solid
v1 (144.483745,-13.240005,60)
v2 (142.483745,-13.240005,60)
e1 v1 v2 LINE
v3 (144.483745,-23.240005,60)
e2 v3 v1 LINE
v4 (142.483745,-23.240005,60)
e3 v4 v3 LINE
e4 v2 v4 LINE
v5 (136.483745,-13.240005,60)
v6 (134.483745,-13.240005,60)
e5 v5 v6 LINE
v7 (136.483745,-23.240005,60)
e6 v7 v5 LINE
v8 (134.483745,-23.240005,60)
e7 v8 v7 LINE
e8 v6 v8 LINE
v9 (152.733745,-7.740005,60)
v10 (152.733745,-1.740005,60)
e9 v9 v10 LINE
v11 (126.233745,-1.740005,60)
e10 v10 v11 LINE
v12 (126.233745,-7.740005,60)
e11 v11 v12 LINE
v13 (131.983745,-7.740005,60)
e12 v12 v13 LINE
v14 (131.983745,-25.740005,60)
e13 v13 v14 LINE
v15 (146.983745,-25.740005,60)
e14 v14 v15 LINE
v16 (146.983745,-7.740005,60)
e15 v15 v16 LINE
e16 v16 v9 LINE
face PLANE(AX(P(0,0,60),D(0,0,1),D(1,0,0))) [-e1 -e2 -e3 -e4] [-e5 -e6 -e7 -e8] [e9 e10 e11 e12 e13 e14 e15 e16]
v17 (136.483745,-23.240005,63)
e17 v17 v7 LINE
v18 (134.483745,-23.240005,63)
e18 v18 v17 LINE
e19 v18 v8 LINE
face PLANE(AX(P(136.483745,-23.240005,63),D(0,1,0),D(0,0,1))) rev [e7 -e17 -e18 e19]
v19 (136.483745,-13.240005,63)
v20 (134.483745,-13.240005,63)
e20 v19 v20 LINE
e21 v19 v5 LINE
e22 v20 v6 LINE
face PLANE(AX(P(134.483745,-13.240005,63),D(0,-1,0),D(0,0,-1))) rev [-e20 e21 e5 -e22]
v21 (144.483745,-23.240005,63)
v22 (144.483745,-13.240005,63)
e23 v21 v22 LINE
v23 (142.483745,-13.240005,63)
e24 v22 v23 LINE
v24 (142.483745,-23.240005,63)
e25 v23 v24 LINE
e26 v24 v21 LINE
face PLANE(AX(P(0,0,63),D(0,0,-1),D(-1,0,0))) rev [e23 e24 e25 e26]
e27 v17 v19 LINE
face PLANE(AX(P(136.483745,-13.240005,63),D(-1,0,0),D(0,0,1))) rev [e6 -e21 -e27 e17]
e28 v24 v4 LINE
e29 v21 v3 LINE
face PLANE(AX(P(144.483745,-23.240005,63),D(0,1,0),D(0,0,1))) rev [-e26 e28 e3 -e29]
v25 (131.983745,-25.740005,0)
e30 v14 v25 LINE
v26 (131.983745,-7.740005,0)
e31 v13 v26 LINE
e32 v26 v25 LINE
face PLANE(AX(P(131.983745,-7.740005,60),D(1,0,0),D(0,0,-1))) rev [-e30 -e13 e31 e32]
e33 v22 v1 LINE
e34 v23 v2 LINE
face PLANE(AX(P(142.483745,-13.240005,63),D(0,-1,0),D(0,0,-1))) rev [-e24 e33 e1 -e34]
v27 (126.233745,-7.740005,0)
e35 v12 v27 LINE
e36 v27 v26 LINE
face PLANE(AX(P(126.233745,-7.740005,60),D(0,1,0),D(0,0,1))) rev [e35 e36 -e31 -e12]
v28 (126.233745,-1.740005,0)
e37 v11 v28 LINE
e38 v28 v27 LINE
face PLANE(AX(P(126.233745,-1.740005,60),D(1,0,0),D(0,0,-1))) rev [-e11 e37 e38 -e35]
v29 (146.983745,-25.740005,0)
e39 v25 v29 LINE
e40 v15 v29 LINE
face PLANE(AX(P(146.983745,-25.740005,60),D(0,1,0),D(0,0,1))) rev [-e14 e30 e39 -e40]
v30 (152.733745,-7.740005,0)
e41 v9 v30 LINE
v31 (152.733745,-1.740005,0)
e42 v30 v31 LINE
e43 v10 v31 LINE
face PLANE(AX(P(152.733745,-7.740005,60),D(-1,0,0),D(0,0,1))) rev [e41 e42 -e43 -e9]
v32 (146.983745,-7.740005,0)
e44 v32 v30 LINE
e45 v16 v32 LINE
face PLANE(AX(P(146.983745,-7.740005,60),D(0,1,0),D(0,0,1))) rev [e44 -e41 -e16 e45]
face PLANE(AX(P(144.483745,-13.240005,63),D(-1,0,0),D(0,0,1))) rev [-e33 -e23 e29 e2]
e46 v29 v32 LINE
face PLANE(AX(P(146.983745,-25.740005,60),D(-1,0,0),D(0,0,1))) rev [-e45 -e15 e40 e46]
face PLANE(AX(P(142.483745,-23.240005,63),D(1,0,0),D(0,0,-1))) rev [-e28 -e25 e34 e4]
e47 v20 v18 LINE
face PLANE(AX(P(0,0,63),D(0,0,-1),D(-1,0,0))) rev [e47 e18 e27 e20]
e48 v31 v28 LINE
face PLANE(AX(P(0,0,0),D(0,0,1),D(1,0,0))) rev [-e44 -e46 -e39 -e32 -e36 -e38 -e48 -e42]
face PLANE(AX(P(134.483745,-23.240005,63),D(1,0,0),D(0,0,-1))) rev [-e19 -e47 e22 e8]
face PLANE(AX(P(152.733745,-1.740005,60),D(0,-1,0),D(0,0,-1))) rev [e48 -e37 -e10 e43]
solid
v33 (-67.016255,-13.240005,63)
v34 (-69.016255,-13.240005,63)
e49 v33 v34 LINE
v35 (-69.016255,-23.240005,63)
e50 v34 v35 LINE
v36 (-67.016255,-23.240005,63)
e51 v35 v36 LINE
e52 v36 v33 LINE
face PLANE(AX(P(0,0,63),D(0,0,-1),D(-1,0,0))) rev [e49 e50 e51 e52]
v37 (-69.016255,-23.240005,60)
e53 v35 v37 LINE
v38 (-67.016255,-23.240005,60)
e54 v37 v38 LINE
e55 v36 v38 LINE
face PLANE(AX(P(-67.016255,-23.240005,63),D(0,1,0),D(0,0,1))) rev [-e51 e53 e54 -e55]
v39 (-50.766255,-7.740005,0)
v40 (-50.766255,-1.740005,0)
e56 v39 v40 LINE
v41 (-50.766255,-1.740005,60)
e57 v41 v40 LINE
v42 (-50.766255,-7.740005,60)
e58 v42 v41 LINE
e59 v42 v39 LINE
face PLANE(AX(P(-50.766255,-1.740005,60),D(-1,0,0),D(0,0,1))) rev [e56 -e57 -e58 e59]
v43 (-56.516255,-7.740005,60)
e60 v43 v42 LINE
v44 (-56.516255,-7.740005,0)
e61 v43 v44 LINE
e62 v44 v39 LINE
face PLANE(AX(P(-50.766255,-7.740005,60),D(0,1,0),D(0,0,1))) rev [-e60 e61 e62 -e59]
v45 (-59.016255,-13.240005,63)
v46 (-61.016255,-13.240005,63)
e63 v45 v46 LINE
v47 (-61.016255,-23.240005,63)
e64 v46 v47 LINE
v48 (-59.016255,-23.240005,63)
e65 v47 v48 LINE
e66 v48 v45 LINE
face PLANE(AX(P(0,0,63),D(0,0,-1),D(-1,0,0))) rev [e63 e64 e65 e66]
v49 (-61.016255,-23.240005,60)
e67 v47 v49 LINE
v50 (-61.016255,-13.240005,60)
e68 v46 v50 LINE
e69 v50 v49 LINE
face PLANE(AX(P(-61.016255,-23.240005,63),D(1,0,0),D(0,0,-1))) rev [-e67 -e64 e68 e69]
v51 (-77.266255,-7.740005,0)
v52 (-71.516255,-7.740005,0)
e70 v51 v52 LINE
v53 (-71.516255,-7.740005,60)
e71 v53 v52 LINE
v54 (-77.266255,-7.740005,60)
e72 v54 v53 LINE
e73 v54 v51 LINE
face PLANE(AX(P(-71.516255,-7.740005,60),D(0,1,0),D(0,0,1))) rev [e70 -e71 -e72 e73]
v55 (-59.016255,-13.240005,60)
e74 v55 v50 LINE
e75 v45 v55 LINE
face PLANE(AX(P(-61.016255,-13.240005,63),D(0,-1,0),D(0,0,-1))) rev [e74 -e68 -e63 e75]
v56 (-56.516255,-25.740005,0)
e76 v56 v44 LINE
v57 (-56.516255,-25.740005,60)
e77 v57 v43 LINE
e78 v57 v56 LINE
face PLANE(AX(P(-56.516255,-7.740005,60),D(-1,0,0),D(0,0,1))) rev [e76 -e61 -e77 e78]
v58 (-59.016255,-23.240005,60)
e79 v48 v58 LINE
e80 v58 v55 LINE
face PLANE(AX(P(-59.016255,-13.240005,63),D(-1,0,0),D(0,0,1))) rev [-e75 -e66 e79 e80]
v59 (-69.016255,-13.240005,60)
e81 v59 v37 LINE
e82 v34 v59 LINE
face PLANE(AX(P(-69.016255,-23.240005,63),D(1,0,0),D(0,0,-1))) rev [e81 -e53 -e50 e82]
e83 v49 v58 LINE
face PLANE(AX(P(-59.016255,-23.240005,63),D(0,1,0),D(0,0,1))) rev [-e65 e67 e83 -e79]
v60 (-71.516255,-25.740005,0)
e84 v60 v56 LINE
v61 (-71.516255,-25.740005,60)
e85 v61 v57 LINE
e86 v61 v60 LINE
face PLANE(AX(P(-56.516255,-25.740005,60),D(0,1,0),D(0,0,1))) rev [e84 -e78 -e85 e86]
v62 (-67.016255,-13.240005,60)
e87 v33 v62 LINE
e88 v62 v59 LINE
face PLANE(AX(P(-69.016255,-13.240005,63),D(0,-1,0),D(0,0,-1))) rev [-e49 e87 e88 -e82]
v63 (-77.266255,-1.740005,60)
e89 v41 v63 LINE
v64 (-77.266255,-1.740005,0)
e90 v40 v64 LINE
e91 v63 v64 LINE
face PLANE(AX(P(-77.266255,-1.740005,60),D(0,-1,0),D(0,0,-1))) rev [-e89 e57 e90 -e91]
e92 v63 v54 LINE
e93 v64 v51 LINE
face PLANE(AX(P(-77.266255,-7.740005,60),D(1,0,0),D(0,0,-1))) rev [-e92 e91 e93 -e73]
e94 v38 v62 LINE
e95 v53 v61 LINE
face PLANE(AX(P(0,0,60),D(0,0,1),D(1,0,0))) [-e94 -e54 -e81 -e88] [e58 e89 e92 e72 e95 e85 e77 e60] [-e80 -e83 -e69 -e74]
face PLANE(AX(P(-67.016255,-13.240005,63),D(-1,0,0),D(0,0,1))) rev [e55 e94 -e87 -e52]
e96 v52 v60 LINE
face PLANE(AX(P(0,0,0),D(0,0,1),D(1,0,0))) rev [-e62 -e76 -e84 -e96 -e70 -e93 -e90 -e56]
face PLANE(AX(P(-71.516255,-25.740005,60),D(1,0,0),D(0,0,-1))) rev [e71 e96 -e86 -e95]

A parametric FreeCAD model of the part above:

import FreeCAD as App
import Part
import Sketcher

V = App.Vector
Q = App.Units.Quantity

doc = App.newDocument("Part")
body = doc.addObject("PartDesign::Body", "Body")

sketch1 = body.newObject("Sketcher::SketchObject", "Sketch")
sketch1.AttachmentSupport = (doc.getObject("XY_Plane"), [""])
sketch1.MapMode = "FlatFace"
sketch1.addGeometry([
    Part.LineSegment(V(-56.516255, -25.740005, 0), V(-56.516255, -7.740005, 0)),
    Part.LineSegment(V(-56.516255, -7.740005, 0), V(-50.766255, -7.740005, 0)),
    Part.LineSegment(V(-50.766255, -7.740005, 0), V(-50.766255, -1.740005, 0)),
    Part.LineSegment(V(-50.766255, -1.740005, 0), V(-77.266255, -1.740005, 0)),
    Part.LineSegment(V(-77.266255, -1.740005, 0), V(-77.266255, -7.740005, 0)),
    Part.LineSegment(V(-77.266255, -7.740005, 0), V(-71.516255, -7.740005, 0)),
    Part.LineSegment(V(-71.516255, -7.740005, 0), V(-71.516255, -25.740005, 0)),
    Part.LineSegment(V(-71.516255, -25.740005, 0), V(-56.516255, -25.740005, 0)),
], False)
sketch1.addConstraint([
    Sketcher.Constraint("Coincident", 0, 2, 1, 1),
    Sketcher.Constraint("Coincident", 1, 2, 2, 1),
    Sketcher.Constraint("Coincident", 2, 2, 3, 1),
    Sketcher.Constraint("Coincident", 3, 2, 4, 1),
    Sketcher.Constraint("Coincident", 4, 2, 5, 1),
    Sketcher.Constraint("Coincident", 5, 2, 6, 1),
    Sketcher.Constraint("Coincident", 6, 2, 7, 1),
    Sketcher.Constraint("Coincident", 7, 2, 0, 1),
    Sketcher.Constraint("Vertical", 0),
    Sketcher.Constraint("Horizontal", 1),
    Sketcher.Constraint("Vertical", 2),
    Sketcher.Constraint("Horizontal", 3),
    Sketcher.Constraint("Vertical", 4),
    Sketcher.Constraint("Horizontal", 5),
    Sketcher.Constraint("Vertical", 6),
    Sketcher.Constraint("Horizontal", 7),
    Sketcher.Constraint("Horizontal", 1, 2, 4, 2),
    Sketcher.Constraint("Equal", 1, 5),
    Sketcher.Constraint("DistanceX", 7, 1, 7, 2, Q("15 mm")),
    Sketcher.Constraint("DistanceY", 0, 1, 0, 2, Q("18 mm")),
    Sketcher.Constraint("DistanceY", 2, 1, 2, 2, Q("6 mm")),
    Sketcher.Constraint("DistanceX", 3, 2, 3, 1, Q("26.5 mm")),
    Sketcher.Constraint("DistanceX", 0, 2, -1, 1, Q("56.516255 mm")),
    Sketcher.Constraint("DistanceY", 0, 2, -1, 1, Q("7.740005 mm")),
])
pad1 = body.newObject("PartDesign::Pad", "Pad")
pad1.Profile = sketch1
pad1.Length = 60
body2 = doc.addObject("PartDesign::Body", "Body001")

sketch2 = body2.newObject("Sketcher::SketchObject", "Sketch001")
sketch2.AttachmentSupport = (doc.getObject("XY_Plane001"), [""])
sketch2.MapMode = "FlatFace"
sketch2.addGeometry([
    Part.LineSegment(V(146.983745, -25.740005, 0), V(146.983745, -7.740005, 0)),
    Part.LineSegment(V(146.983745, -7.740005, 0), V(152.733745, -7.740005, 0)),
    Part.LineSegment(V(152.733745, -7.740005, 0), V(152.733745, -1.740005, 0)),
    Part.LineSegment(V(152.733745, -1.740005, 0), V(126.233745, -1.740005, 0)),
    Part.LineSegment(V(126.233745, -1.740005, 0), V(126.233745, -7.740005, 0)),
    Part.LineSegment(V(126.233745, -7.740005, 0), V(131.983745, -7.740005, 0)),
    Part.LineSegment(V(131.983745, -7.740005, 0), V(131.983745, -25.740005, 0)),
    Part.LineSegment(V(131.983745, -25.740005, 0), V(146.983745, -25.740005, 0)),
], False)
sketch2.addConstraint([
    Sketcher.Constraint("Coincident", 0, 2, 1, 1),
    Sketcher.Constraint("Coincident", 1, 2, 2, 1),
    Sketcher.Constraint("Coincident", 2, 2, 3, 1),
    Sketcher.Constraint("Coincident", 3, 2, 4, 1),
    Sketcher.Constraint("Coincident", 4, 2, 5, 1),
    Sketcher.Constraint("Coincident", 5, 2, 6, 1),
    Sketcher.Constraint("Coincident", 6, 2, 7, 1),
    Sketcher.Constraint("Coincident", 7, 2, 0, 1),
    Sketcher.Constraint("Vertical", 0),
    Sketcher.Constraint("Horizontal", 1),
    Sketcher.Constraint("Vertical", 2),
    Sketcher.Constraint("Horizontal", 3),
    Sketcher.Constraint("Vertical", 4),
    Sketcher.Constraint("Horizontal", 5),
    Sketcher.Constraint("Vertical", 6),
    Sketcher.Constraint("Horizontal", 7),
    Sketcher.Constraint("Horizontal", 1, 2, 4, 2),
    Sketcher.Constraint("Equal", 1, 5),
    Sketcher.Constraint("DistanceX", 7, 1, 7, 2, Q("15 mm")),
    Sketcher.Constraint("DistanceY", 0, 1, 0, 2, Q("18 mm")),
    Sketcher.Constraint("DistanceY", 2, 1, 2, 2, Q("6 mm")),
    Sketcher.Constraint("DistanceX", 3, 2, 3, 1, Q("26.5 mm")),
    Sketcher.Constraint("DistanceX", -1, 1, 0, 2, Q("146.983745 mm")),
    Sketcher.Constraint("DistanceY", 0, 2, -1, 1, Q("7.740005 mm")),
])
pad2 = body2.newObject("PartDesign::Pad", "Pad001")
pad2.Profile = sketch2
pad2.Length = 60
body.AllowCompound = True
doc.recompute()

boolean = body.newObject("PartDesign::Boolean", "Boolean")
boolean.Type = "Fuse"
boolean.addObjects([body2])

sketch3 = body.newObject("Sketcher::SketchObject", "Sketch002")
sketch3.AttachmentSupport = (doc.getObject("XY_Plane"), [""])
sketch3.MapMode = "FlatFace"
sketch3.AttachmentOffset = App.Placement(V(0, 0, 60), App.Rotation())
sketch3.addGeometry([
    Part.LineSegment(V(-69.016255, -13.240005, 0), V(-69.016255, -23.240005, 0)),
    Part.LineSegment(V(-69.016255, -23.240005, 0), V(-67.016255, -23.240005, 0)),
    Part.LineSegment(V(-67.016255, -23.240005, 0), V(-67.016255, -13.240005, 0)),
    Part.LineSegment(V(-67.016255, -13.240005, 0), V(-69.016255, -13.240005, 0)),
    Part.LineSegment(V(-61.016255, -13.240005, 0), V(-61.016255, -23.240005, 0)),
    Part.LineSegment(V(-61.016255, -23.240005, 0), V(-59.016255, -23.240005, 0)),
    Part.LineSegment(V(-59.016255, -23.240005, 0), V(-59.016255, -13.240005, 0)),
    Part.LineSegment(V(-59.016255, -13.240005, 0), V(-61.016255, -13.240005, 0)),
    Part.LineSegment(V(134.483745, -13.240005, 0), V(134.483745, -23.240005, 0)),
    Part.LineSegment(V(134.483745, -23.240005, 0), V(136.483745, -23.240005, 0)),
    Part.LineSegment(V(136.483745, -23.240005, 0), V(136.483745, -13.240005, 0)),
    Part.LineSegment(V(136.483745, -13.240005, 0), V(134.483745, -13.240005, 0)),
    Part.LineSegment(V(142.483745, -13.240005, 0), V(142.483745, -23.240005, 0)),
    Part.LineSegment(V(142.483745, -23.240005, 0), V(144.483745, -23.240005, 0)),
    Part.LineSegment(V(144.483745, -23.240005, 0), V(144.483745, -13.240005, 0)),
    Part.LineSegment(V(144.483745, -13.240005, 0), V(142.483745, -13.240005, 0)),
], False)
sketch3.addConstraint([
    Sketcher.Constraint("Coincident", 0, 2, 1, 1),
    Sketcher.Constraint("Coincident", 1, 2, 2, 1),
    Sketcher.Constraint("Coincident", 2, 2, 3, 1),
    Sketcher.Constraint("Coincident", 3, 2, 0, 1),
    Sketcher.Constraint("Coincident", 4, 2, 5, 1),
    Sketcher.Constraint("Coincident", 5, 2, 6, 1),
    Sketcher.Constraint("Coincident", 6, 2, 7, 1),
    Sketcher.Constraint("Coincident", 7, 2, 4, 1),
    Sketcher.Constraint("Coincident", 8, 2, 9, 1),
    Sketcher.Constraint("Coincident", 9, 2, 10, 1),
    Sketcher.Constraint("Coincident", 10, 2, 11, 1),
    Sketcher.Constraint("Coincident", 11, 2, 8, 1),
    Sketcher.Constraint("Coincident", 12, 2, 13, 1),
    Sketcher.Constraint("Coincident", 13, 2, 14, 1),
    Sketcher.Constraint("Coincident", 14, 2, 15, 1),
    Sketcher.Constraint("Coincident", 15, 2, 12, 1),
    Sketcher.Constraint("Vertical", 0),
    Sketcher.Constraint("Horizontal", 1),
    Sketcher.Constraint("Vertical", 2),
    Sketcher.Constraint("Horizontal", 3),
    Sketcher.Constraint("Vertical", 4),
    Sketcher.Constraint("Horizontal", 5),
    Sketcher.Constraint("Vertical", 6),
    Sketcher.Constraint("Horizontal", 7),
    Sketcher.Constraint("Vertical", 8),
    Sketcher.Constraint("Horizontal", 9),
    Sketcher.Constraint("Vertical", 10),
    Sketcher.Constraint("Horizontal", 11),
    Sketcher.Constraint("Vertical", 12),
    Sketcher.Constraint("Horizontal", 13),
    Sketcher.Constraint("Vertical", 14),
    Sketcher.Constraint("Horizontal", 15),
    Sketcher.Constraint("Horizontal", 1, 2, 4, 2),
    Sketcher.Constraint("Horizontal", 3, 2, 6, 2),
    Sketcher.Constraint("Horizontal", 5, 2, 8, 2),
    Sketcher.Constraint("Horizontal", 7, 2, 10, 2),
    Sketcher.Constraint("Horizontal", 9, 2, 12, 2),
    Sketcher.Constraint("Horizontal", 11, 2, 14, 2),
    Sketcher.Constraint("Equal", 3, 5),
    Sketcher.Constraint("Equal", 7, 9),
    Sketcher.Constraint("Equal", 11, 13),
    Sketcher.Constraint("DistanceX", 1, 1, 1, 2, Q("2 mm")),
    Sketcher.Constraint("DistanceY", 0, 2, 0, 1, Q("10 mm")),
    Sketcher.Constraint("DistanceX", 1, 2, 4, 2, Q("6 mm")),
    Sketcher.Constraint("DistanceX", 9, 2, 12, 2, Q("6 mm")),
    Sketcher.Constraint("DistanceX", 5, 2, 8, 2, Q("193.5 mm")),
    Sketcher.Constraint("DistanceX", 0, 2, -1, 1, Q("69.016255 mm")),
    Sketcher.Constraint("DistanceY", 0, 2, -1, 1, Q("23.240005 mm")),
])
pad3 = body.newObject("PartDesign::Pad", "Pad002")
pad3.Profile = sketch3
pad3.Length = 3

doc.recompute()
